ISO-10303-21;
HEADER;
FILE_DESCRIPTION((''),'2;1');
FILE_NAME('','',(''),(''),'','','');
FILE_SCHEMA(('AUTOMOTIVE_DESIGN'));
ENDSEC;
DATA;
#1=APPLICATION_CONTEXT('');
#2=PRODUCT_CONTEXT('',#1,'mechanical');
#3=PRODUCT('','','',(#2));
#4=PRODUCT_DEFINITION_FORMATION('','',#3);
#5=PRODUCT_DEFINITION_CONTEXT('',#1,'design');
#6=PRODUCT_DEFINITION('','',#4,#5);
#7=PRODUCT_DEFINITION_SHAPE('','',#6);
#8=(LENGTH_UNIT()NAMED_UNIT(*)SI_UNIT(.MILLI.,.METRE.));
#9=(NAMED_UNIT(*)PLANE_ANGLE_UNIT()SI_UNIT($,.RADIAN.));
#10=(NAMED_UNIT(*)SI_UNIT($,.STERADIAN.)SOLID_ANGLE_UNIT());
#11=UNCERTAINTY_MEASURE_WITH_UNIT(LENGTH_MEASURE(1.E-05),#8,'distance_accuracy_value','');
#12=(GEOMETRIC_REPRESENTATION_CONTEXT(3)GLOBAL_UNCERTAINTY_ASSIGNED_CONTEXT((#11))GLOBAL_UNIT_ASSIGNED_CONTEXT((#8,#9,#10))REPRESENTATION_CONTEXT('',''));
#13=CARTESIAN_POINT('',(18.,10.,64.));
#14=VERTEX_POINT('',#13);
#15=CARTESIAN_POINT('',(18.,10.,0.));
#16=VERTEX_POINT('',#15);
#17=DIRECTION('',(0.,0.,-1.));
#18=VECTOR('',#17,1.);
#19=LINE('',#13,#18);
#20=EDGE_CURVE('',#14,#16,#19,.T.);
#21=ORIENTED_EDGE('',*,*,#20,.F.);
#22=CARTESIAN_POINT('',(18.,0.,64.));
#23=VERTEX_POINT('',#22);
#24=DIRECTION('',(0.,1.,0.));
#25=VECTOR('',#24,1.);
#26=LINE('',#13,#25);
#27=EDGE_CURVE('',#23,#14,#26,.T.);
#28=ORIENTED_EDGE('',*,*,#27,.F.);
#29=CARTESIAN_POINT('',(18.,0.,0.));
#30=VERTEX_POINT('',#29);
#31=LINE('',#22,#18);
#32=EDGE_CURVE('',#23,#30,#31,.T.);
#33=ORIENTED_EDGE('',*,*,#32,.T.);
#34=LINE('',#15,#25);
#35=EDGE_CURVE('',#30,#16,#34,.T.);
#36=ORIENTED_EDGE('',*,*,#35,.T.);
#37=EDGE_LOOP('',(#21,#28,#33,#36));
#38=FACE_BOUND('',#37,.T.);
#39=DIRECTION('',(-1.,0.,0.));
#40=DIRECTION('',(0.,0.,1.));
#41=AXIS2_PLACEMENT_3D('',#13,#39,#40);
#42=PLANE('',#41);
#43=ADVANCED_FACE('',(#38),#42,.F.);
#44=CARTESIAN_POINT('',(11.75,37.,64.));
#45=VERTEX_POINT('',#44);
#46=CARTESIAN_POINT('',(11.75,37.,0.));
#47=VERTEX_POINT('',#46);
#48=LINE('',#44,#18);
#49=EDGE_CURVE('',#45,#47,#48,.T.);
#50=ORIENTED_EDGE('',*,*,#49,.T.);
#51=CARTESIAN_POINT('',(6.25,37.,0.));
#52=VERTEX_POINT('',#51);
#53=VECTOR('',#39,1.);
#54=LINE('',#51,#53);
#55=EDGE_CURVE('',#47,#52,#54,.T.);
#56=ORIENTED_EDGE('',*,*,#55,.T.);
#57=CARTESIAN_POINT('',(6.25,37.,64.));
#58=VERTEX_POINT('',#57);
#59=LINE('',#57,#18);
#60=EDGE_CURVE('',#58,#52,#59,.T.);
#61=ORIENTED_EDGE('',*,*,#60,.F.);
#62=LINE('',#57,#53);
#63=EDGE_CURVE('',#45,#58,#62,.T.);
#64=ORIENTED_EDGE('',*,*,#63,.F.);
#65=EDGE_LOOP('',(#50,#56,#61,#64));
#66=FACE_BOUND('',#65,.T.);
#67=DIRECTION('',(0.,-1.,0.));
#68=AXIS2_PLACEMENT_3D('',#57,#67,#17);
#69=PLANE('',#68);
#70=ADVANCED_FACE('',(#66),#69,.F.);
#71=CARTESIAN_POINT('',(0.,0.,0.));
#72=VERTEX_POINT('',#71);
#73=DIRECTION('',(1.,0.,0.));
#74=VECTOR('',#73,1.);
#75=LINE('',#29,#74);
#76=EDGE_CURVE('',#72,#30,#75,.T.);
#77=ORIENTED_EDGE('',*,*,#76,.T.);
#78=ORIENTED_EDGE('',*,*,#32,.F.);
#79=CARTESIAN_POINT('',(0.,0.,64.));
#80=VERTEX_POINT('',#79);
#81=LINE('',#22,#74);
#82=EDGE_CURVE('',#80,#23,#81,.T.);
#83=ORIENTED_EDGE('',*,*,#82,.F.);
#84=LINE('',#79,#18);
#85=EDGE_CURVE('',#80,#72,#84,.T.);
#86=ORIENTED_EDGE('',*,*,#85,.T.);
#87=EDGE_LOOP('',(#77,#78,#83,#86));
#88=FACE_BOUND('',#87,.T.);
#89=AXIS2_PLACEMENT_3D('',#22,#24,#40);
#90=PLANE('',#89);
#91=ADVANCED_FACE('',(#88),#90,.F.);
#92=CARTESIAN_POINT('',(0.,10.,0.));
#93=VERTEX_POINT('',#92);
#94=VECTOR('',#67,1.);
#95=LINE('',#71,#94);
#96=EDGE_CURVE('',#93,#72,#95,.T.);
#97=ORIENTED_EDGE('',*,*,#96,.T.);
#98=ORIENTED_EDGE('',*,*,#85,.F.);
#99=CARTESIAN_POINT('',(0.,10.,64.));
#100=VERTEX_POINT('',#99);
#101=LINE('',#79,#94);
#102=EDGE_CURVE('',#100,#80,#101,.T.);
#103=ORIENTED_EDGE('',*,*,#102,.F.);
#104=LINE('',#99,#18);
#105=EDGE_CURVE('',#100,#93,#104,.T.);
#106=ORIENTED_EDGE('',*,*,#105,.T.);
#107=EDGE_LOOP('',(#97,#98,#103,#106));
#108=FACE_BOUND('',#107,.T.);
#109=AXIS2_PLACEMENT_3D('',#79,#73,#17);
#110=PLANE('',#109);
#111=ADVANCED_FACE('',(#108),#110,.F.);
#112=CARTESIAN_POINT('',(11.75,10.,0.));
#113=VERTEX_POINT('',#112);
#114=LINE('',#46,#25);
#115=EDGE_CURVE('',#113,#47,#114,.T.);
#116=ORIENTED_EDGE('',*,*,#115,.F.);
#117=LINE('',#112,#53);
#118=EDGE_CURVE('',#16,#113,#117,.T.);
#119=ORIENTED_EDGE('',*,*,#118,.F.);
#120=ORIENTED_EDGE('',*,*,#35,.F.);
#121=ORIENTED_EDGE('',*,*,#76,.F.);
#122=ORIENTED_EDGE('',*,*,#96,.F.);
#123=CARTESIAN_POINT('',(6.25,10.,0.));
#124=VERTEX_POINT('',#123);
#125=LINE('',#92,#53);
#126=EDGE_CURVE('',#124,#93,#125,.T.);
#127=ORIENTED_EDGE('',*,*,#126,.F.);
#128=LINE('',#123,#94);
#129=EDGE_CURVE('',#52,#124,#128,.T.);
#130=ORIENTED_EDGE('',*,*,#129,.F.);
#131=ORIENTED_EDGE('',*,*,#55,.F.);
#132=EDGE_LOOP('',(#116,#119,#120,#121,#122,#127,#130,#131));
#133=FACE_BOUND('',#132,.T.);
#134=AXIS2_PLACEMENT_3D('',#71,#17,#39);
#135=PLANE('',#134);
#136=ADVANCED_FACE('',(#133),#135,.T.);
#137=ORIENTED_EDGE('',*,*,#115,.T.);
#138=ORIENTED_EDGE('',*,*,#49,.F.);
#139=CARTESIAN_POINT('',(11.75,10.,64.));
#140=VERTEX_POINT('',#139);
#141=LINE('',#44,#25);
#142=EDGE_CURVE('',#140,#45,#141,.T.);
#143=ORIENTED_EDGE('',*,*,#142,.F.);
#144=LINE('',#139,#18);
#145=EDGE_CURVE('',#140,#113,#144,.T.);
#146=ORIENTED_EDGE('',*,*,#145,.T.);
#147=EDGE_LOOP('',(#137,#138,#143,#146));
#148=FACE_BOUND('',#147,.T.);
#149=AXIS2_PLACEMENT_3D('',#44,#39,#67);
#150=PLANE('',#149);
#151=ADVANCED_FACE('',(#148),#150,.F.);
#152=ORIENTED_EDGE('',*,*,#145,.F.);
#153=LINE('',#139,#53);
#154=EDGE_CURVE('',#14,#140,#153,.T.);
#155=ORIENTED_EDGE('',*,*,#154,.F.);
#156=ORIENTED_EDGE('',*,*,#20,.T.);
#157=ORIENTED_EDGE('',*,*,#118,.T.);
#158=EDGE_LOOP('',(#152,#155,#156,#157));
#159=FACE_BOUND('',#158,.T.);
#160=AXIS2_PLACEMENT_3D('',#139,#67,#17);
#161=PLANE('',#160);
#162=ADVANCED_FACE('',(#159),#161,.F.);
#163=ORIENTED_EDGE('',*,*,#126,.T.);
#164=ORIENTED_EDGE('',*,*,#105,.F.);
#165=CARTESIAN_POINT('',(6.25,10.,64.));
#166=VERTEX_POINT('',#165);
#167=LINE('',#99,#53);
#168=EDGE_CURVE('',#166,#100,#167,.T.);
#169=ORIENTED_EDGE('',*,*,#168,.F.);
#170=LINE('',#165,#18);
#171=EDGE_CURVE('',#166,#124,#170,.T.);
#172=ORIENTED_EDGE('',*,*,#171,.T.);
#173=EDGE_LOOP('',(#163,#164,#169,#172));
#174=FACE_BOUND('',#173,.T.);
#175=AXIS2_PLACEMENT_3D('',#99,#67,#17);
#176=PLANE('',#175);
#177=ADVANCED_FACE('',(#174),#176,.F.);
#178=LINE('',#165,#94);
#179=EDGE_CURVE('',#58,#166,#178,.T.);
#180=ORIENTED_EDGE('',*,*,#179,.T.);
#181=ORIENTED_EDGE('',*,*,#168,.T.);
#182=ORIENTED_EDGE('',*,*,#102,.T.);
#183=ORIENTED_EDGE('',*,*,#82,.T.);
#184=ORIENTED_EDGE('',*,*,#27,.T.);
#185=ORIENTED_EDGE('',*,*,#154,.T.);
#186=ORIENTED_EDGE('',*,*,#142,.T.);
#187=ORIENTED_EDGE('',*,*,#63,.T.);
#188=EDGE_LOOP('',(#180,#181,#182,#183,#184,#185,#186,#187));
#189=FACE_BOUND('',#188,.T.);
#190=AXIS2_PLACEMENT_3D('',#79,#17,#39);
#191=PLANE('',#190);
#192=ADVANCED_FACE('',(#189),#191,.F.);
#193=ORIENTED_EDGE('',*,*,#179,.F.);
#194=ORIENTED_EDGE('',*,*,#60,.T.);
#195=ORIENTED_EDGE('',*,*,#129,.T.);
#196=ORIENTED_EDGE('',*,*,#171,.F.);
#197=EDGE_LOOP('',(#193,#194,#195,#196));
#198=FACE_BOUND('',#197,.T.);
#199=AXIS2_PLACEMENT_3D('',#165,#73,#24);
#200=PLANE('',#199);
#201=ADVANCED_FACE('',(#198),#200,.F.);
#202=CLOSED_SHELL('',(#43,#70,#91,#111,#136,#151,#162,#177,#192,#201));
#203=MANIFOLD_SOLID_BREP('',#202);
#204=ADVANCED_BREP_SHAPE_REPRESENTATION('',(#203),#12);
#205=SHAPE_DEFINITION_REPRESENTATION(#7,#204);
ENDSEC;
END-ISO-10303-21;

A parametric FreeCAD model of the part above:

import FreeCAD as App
import Part
import Sketcher
from FreeCAD import Vector


def add_polygon(sketch, points):
    """Adds a closed chain of lines whose ends are joined by coincident constraints."""
    first, n = sketch.GeometryCount, len(points)
    for a, b in zip(points, points[1:] + points[:1]):
        sketch.addGeometry(Part.LineSegment(App.Vector(*a, 0), App.Vector(*b, 0)), False)
    for i in range(n):
        sketch.addConstraint(Sketcher.Constraint("Coincident", first + i, 2, first + (i + 1) % n, 1))

doc = App.newDocument("Part")
body = doc.addObject("PartDesign::Body", "Body")

# Sketch on XY plane
sketch1 = doc.addObject("Sketcher::SketchObject", "Sketch")
body.addObject(sketch1)
sketch1.AttachmentSupport = (doc.XY_Plane, [""])
sketch1.MapMode = "FlatFace"
add_polygon(sketch1, [(0, 10), (0, 0), (18, 0), (18, 10), (12, 10), (12, 37), (6, 37), (6, 10)])  # lines 0-7
sketch1.addConstraint([
    Sketcher.Constraint("Vertical", 0),
    Sketcher.Constraint("Horizontal", 1),
    Sketcher.Constraint("Vertical", 2),
    Sketcher.Constraint("Horizontal", 3),
    Sketcher.Constraint("Vertical", 4),
    Sketcher.Constraint("Horizontal", 5),
    Sketcher.Constraint("Vertical", 6),
    Sketcher.Constraint("Horizontal", 7),
    Sketcher.Constraint("Coincident", 0, 2, -1, 1),
    Sketcher.Constraint("Horizontal", 3, 2, 6, 2),
    Sketcher.Constraint("Equal", 3, 7),
    Sketcher.Constraint("DistanceX", 1, 1, 1, 2, 18.0),
    Sketcher.Constraint("DistanceY", 0, 2, 0, 1, 10.0),
    Sketcher.Constraint("DistanceY", 4, 1, 4, 2, 27.0),
    Sketcher.Constraint("DistanceX", 5, 2, 5, 1, 5.5),
])
pad1 = doc.addObject("PartDesign::Pad", "Pad")
body.addObject(pad1)
pad1.Profile = sketch1
pad1.Length = 64

doc.recompute()
